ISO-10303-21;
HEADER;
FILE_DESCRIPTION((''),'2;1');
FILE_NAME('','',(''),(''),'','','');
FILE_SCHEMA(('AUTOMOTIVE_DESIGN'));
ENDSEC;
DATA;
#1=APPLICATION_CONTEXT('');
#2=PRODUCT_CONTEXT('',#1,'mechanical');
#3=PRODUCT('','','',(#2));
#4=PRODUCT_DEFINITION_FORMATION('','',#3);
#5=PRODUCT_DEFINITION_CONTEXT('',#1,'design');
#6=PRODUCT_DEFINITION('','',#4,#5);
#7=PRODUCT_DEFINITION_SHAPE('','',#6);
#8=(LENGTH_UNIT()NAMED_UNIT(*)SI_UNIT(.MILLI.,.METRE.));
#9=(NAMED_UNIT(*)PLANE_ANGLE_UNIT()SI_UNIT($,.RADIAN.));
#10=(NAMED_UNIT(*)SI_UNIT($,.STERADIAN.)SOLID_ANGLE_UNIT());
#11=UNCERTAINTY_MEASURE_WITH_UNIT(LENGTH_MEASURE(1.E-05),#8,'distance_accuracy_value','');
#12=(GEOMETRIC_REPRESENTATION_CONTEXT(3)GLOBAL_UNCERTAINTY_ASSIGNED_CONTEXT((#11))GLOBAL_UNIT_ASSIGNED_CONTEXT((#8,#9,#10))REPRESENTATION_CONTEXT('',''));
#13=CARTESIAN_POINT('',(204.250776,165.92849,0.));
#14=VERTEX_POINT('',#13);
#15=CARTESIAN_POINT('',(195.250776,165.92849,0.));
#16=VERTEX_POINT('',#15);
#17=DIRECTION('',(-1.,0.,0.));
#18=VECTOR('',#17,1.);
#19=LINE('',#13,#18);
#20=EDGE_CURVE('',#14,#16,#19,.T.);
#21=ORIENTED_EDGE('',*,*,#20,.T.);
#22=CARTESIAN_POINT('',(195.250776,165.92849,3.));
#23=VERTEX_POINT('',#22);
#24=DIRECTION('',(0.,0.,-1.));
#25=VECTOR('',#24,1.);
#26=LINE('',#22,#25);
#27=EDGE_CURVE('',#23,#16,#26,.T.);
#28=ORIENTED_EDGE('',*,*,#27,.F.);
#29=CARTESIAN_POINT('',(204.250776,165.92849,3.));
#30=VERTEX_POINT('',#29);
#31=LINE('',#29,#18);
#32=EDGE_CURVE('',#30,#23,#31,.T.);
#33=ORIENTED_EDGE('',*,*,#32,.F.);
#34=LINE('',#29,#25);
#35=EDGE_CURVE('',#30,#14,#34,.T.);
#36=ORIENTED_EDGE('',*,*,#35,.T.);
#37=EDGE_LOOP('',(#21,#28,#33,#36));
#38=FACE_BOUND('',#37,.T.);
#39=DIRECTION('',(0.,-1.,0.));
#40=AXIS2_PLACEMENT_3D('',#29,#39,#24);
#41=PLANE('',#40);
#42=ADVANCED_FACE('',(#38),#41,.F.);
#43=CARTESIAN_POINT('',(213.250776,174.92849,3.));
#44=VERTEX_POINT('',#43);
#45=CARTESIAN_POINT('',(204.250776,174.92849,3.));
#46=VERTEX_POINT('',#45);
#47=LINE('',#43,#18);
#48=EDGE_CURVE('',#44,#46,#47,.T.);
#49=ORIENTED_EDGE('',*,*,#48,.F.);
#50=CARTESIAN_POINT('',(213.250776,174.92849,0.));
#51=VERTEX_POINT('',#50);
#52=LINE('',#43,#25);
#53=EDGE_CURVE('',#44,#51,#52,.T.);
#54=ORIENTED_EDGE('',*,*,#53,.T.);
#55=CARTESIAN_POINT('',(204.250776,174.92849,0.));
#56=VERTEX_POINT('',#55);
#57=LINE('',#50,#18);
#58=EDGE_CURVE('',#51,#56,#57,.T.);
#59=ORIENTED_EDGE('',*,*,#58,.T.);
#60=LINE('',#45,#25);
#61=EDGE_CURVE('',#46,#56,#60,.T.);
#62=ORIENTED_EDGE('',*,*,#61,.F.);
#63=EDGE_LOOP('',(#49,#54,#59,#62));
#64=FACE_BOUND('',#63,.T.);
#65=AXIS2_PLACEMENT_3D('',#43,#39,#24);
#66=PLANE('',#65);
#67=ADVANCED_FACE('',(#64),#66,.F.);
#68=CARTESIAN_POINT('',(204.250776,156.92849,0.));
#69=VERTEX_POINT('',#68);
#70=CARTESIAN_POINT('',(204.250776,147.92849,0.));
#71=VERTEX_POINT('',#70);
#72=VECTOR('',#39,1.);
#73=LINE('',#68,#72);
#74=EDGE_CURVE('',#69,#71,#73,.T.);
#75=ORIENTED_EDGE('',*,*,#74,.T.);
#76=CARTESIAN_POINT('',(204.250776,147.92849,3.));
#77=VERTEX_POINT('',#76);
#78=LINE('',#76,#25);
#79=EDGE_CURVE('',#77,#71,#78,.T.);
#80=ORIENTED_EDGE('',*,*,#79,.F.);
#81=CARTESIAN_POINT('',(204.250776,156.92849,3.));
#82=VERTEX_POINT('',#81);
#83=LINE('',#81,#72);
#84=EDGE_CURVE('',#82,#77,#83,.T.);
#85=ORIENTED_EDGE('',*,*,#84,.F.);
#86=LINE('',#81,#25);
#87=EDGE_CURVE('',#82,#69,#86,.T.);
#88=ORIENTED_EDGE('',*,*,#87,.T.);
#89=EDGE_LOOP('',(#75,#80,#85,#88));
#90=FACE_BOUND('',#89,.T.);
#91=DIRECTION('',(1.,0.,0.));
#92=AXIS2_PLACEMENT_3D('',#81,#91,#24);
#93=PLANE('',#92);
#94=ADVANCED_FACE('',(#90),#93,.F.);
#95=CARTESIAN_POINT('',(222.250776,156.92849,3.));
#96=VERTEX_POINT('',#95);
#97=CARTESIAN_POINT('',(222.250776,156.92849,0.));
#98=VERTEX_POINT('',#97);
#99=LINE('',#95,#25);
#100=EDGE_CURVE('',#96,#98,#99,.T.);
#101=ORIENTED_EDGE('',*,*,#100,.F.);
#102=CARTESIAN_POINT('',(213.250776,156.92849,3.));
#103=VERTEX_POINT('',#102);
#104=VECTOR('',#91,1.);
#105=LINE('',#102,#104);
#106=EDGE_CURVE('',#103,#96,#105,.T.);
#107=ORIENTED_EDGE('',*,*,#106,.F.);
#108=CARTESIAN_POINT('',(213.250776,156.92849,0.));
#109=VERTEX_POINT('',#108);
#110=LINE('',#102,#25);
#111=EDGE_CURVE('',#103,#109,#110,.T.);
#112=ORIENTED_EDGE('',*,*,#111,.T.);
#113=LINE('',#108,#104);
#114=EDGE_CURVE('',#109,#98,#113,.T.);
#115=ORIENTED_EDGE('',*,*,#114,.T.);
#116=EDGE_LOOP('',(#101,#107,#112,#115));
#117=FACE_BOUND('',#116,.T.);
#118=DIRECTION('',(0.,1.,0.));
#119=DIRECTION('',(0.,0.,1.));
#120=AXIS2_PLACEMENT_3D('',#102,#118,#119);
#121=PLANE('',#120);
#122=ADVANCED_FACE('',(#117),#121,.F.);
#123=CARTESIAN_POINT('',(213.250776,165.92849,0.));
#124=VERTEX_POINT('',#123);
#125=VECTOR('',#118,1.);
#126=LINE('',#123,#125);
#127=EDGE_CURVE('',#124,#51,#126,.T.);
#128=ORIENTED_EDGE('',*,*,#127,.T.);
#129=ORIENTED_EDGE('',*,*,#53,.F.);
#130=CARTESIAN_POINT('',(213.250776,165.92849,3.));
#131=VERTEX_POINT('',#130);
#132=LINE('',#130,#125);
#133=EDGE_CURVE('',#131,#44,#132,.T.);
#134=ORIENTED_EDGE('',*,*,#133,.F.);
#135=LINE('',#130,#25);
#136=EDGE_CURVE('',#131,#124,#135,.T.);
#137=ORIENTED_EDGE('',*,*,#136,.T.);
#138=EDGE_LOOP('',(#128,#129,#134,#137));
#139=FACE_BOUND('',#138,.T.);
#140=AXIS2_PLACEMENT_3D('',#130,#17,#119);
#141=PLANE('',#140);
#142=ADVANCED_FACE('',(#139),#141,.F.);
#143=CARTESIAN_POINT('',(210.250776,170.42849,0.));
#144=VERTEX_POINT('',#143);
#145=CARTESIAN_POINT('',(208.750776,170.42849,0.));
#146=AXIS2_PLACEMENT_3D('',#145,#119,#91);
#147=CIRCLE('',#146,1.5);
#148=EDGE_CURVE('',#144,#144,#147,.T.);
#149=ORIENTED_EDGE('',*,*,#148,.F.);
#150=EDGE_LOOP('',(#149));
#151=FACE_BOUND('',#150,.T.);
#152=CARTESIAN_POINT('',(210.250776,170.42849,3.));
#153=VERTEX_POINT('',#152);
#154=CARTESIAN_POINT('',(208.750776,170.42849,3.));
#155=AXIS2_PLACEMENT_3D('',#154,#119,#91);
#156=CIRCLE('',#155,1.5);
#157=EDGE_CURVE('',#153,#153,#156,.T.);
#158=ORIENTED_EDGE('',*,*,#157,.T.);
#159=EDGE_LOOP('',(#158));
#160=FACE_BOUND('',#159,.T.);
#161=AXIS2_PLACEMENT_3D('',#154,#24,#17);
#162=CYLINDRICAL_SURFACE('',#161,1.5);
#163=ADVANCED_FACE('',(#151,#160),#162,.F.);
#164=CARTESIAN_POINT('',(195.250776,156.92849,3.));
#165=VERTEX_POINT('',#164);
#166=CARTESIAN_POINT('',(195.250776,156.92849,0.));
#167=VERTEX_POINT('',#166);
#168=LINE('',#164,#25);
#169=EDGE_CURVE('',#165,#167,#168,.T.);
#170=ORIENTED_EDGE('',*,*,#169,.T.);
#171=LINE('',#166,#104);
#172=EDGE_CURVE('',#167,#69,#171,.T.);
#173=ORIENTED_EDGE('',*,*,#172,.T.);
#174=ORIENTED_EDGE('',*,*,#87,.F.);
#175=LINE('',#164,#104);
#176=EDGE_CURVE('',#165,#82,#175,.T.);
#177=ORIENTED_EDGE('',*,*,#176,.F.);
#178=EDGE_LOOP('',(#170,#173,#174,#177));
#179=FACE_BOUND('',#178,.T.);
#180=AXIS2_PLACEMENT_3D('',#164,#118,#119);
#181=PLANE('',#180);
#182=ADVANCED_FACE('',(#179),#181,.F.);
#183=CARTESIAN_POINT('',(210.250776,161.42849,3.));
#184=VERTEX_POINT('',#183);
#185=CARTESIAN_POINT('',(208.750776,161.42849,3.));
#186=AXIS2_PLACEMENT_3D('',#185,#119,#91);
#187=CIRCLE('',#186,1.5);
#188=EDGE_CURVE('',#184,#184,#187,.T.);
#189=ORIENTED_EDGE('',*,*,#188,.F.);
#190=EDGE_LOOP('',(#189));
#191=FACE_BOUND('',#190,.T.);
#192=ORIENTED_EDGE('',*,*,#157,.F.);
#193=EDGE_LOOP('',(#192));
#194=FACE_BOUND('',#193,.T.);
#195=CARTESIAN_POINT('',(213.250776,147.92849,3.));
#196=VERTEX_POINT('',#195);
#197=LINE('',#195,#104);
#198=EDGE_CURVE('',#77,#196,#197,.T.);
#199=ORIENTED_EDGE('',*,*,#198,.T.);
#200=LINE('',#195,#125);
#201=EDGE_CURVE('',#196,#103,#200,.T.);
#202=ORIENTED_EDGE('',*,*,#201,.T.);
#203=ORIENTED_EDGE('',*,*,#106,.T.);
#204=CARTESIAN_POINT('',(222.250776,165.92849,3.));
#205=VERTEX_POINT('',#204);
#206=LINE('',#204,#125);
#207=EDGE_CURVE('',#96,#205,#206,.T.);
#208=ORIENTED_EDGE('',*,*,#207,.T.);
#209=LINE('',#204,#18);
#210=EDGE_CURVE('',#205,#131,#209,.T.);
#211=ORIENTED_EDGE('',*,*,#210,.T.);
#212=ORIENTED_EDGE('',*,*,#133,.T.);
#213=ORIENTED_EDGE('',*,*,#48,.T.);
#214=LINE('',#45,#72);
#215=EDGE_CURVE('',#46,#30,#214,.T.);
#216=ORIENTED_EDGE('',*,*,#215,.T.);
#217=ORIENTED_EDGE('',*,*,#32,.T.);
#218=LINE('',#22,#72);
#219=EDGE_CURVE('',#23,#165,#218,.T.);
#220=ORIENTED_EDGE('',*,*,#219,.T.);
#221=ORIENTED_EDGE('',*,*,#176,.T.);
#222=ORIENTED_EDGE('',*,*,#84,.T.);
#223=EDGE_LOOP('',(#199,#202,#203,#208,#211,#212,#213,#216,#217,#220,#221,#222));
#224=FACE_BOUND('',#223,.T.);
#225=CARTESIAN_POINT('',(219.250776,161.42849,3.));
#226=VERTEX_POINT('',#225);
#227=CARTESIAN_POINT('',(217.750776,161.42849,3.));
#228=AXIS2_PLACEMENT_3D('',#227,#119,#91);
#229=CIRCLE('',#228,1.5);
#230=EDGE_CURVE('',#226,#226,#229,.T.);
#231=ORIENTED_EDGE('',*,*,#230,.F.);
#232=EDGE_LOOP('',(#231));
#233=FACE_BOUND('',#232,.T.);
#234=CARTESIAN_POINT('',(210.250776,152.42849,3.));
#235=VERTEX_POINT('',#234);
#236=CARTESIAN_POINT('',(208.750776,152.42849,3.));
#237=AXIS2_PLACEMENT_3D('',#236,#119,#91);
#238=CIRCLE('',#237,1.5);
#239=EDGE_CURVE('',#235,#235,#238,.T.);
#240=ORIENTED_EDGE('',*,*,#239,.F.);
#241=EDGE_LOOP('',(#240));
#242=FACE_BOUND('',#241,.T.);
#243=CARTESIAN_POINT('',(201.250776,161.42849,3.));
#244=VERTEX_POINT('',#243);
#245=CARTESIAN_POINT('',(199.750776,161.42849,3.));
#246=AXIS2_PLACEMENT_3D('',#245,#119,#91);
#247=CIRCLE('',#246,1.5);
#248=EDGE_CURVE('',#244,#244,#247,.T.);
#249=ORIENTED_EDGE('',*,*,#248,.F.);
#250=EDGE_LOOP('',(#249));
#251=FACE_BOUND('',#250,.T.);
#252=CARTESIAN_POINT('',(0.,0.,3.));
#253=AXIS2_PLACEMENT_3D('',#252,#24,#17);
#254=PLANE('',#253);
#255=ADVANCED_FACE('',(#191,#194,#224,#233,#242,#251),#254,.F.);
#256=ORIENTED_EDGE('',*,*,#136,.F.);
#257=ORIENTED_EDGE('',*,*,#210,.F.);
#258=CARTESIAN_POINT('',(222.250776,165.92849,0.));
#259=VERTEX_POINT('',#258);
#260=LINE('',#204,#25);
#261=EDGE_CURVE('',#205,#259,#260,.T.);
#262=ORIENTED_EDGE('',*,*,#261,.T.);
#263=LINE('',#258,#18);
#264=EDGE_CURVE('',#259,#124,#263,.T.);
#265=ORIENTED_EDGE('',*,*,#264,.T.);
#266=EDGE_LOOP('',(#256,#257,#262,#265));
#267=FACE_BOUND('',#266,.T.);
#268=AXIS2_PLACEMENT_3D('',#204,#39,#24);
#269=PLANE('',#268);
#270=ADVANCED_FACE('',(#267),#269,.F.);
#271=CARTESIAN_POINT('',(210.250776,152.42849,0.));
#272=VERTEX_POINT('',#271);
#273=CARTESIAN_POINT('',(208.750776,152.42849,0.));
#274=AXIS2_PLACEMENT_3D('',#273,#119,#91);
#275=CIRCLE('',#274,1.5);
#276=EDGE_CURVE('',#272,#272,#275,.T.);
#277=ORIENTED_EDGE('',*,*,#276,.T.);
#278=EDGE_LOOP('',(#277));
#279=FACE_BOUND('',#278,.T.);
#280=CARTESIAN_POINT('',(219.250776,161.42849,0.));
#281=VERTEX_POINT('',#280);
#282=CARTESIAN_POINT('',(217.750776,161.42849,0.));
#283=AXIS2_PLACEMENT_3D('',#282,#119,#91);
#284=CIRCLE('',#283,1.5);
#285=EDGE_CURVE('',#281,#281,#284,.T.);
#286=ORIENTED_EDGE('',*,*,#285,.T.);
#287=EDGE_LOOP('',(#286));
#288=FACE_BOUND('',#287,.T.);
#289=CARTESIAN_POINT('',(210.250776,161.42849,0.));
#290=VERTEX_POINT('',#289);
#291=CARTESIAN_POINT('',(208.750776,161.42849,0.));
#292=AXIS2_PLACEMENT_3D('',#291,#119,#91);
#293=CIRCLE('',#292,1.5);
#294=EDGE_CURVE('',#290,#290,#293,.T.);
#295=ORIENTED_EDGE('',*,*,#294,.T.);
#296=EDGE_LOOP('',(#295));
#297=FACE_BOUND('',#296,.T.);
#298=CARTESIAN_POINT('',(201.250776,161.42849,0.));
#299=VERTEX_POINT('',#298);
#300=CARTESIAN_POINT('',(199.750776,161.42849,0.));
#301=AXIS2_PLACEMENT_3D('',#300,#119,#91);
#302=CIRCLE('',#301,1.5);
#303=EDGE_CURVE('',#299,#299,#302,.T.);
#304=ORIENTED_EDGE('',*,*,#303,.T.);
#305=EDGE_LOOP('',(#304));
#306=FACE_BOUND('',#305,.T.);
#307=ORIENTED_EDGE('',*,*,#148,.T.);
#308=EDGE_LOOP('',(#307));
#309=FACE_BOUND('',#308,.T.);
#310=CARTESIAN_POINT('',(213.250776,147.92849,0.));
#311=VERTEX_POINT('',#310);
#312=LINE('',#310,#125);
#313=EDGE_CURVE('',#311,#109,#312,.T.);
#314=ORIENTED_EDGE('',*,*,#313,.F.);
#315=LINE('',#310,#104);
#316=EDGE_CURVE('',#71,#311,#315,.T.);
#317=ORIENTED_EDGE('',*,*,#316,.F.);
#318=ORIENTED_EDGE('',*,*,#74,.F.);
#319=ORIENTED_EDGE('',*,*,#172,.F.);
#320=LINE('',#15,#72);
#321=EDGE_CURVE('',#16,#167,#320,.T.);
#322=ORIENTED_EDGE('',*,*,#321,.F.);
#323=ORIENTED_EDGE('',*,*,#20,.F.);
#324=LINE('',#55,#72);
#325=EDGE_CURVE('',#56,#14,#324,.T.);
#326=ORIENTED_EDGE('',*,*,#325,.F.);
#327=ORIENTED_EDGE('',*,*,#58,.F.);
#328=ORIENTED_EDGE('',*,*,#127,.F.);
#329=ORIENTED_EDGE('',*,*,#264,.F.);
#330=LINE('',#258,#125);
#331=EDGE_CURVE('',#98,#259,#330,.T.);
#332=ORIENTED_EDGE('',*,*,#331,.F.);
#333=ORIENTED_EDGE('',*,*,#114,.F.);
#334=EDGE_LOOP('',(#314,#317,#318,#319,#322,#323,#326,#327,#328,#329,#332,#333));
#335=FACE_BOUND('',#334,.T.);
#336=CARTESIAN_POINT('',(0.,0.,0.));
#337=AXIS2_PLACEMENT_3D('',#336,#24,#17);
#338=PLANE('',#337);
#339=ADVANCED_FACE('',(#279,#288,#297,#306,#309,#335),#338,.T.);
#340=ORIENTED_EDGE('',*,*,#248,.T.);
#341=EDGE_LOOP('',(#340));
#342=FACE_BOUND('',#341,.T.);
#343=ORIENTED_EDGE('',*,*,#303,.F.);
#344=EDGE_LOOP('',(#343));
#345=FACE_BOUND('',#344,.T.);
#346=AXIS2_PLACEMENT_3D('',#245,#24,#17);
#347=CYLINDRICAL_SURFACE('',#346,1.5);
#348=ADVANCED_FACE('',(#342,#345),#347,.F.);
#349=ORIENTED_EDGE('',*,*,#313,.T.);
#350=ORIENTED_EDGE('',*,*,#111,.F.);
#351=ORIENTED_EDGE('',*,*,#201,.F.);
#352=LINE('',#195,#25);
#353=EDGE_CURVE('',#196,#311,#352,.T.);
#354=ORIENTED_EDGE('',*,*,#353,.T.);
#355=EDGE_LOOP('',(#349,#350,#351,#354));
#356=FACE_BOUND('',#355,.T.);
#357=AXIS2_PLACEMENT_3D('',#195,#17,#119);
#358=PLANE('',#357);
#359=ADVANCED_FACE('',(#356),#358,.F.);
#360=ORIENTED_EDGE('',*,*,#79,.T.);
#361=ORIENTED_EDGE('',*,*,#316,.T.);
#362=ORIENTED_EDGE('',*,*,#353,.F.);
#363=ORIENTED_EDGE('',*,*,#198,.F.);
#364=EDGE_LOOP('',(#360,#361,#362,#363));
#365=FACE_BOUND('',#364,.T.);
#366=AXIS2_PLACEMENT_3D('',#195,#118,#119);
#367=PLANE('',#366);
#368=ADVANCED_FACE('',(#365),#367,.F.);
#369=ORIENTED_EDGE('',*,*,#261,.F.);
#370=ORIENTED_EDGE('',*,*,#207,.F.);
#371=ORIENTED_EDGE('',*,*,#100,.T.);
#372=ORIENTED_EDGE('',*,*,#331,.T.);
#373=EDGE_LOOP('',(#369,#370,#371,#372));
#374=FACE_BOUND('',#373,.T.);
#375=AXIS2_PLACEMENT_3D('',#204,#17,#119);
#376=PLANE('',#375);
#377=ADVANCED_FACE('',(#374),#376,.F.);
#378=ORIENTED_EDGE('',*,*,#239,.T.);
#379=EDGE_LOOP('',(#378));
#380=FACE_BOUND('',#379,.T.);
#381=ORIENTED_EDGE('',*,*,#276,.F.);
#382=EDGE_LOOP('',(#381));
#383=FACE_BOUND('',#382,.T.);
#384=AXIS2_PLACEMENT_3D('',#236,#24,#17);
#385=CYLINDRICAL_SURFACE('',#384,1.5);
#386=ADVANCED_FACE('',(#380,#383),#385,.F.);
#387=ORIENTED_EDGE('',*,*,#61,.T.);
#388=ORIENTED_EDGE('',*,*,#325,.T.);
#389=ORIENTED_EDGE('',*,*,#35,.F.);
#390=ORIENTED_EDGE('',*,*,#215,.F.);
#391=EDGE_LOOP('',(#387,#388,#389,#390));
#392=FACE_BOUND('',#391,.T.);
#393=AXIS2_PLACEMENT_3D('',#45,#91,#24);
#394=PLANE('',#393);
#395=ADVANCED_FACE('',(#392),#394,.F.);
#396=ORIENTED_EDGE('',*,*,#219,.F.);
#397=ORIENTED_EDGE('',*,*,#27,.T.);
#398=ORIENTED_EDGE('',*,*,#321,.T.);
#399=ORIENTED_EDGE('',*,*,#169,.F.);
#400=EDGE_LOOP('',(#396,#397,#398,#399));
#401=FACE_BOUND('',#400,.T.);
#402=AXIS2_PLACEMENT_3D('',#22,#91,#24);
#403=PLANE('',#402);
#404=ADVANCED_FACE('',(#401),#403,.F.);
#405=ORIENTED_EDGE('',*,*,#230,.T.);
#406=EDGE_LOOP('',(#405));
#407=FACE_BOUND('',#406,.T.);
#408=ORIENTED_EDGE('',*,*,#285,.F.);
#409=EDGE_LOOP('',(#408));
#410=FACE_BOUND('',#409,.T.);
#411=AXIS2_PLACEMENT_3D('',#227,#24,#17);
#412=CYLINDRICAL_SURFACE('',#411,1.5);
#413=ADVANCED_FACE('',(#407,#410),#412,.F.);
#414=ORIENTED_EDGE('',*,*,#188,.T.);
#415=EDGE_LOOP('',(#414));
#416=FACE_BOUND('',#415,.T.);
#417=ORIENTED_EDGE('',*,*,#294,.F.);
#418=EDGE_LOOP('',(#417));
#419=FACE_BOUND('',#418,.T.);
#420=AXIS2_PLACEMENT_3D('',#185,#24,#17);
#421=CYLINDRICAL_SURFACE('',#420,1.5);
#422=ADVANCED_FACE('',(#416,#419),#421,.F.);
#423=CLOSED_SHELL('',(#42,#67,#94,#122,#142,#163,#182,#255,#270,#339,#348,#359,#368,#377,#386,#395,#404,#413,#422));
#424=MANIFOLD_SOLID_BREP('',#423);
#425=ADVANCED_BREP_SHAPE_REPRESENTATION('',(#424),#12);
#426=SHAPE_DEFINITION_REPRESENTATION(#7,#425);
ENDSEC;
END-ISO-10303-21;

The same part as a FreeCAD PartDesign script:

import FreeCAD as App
import Part
import Sketcher


def add_polygon(sketch, points):
    """Adds a closed chain of lines whose ends are joined by coincident constraints."""
    first, n = sketch.GeometryCount, len(points)
    for a, b in zip(points, points[1:] + points[:1]):
        sketch.addGeometry(Part.LineSegment(App.Vector(*a, 0), App.Vector(*b, 0)), False)
    for i in range(n):
        sketch.addConstraint(Sketcher.Constraint("Coincident", first + i, 2, first + (i + 1) % n, 1))

doc = App.newDocument("Part")
body = doc.addObject("PartDesign::Body", "Body")

# Sketch on XY plane
sketch1 = body.newObject("Sketcher::SketchObject", "Sketch")
sketch1.AttachmentSupport = (doc.getObject("XY_Plane"), [""])
sketch1.MapMode = "FlatFace"
add_polygon(sketch1, [(213.3, 165.9), (213.3, 174.9), (204.3, 174.9), (204.3, 165.9), (195.3, 165.9), (195.3, 156.9), (204.3, 156.9), (204.3, 147.9), (213.3, 147.9), (213.3, 156.9), (222.3, 156.9), (222.3, 165.9)])  # lines 0-11
sketch1.addGeometry(Part.Circle(App.Vector(208.8, 152.4, 0), App.Vector(0, 0, 1), 1.5), False)  # 12
sketch1.addGeometry(Part.Circle(App.Vector(199.8, 161.4, 0), App.Vector(0, 0, 1), 1.5), False)  # 13
sketch1.addGeometry(Part.Circle(App.Vector(208.8, 161.4, 0), App.Vector(0, 0, 1), 1.5), False)  # 14
sketch1.addGeometry(Part.Circle(App.Vector(217.8, 161.4, 0), App.Vector(0, 0, 1), 1.5), False)  # 15
sketch1.addGeometry(Part.Circle(App.Vector(208.8, 170.4, 0), App.Vector(0, 0, 1), 1.5), False)  # 16
sketch1.addConstraint([
    Sketcher.Constraint("Vertical", 0),
    Sketcher.Constraint("Horizontal", 1),
    Sketcher.Constraint("Vertical", 2),
    Sketcher.Constraint("Horizontal", 3),
    Sketcher.Constraint("Vertical", 4),
    Sketcher.Constraint("Horizontal", 5),
    Sketcher.Constraint("Vertical", 6),
    Sketcher.Constraint("Horizontal", 7),
    Sketcher.Constraint("Vertical", 8),
    Sketcher.Constraint("Horizontal", 9),
    Sketcher.Constraint("Vertical", 10),
    Sketcher.Constraint("Horizontal", 11),
    Sketcher.Constraint("Equal", 12, 13),
    Sketcher.Constraint("Equal", 13, 14),
    Sketcher.Constraint("Equal", 14, 15),
    Sketcher.Constraint("Equal", 15, 16),
    Sketcher.Constraint("Horizontal", 13, 3, 14, 3),
    Sketcher.Constraint("Horizontal", 14, 3, 15, 3),
    Sketcher.Constraint("Horizontal", 5, 2, 8, 2),
    Sketcher.Constraint("Horizontal", 3, 2, 10, 2),
    Sketcher.Constraint("Vertical", 12, 3, 14, 3),
    Sketcher.Constraint("Vertical", 14, 3, 16, 3),
    Sketcher.Constraint("Vertical", 2, 2, 5, 2),
    Sketcher.Constraint("Vertical", 0, 2, 7, 2),
    Sketcher.Constraint("Equal", 1, 3),
    Sketcher.Constraint("Equal", 7, 9),
    Sketcher.Constraint("Equal", 11, 0),
    Sketcher.Constraint("Equal", 2, 4),
    Sketcher.Constraint("Equal", 4, 6),
    Sketcher.Constraint("Diameter", 12, 3.0),
    Sketcher.Constraint("DistanceX", 1, 2, 1, 1, 9.0),
    Sketcher.Constraint("DistanceX", 13, 3, 12, 3, 9.0),
    Sketcher.Constraint("DistanceY", 12, 3, 13, 3, 9.0),
    Sketcher.Constraint("DistanceX", 14, 3, 15, 3, 9.0),
    Sketcher.Constraint("DistanceY", 14, 3, 16, 3, 9.0),
    Sketcher.Constraint("DistanceX", 16, 3, 0, 2, 4.5),
    Sketcher.Constraint("DistanceY", 16, 3, 0, 2, 4.5),
    Sketcher.Constraint("DistanceY", -1, 1, 12, 3, 152.42849),
    Sketcher.Constraint("DistanceX", -1, 1, 12, 3, 208.750776),
])
pad1 = body.newObject("PartDesign::Pad", "Pad")
pad1.Profile = sketch1
pad1.Length = 3

doc.recompute()
